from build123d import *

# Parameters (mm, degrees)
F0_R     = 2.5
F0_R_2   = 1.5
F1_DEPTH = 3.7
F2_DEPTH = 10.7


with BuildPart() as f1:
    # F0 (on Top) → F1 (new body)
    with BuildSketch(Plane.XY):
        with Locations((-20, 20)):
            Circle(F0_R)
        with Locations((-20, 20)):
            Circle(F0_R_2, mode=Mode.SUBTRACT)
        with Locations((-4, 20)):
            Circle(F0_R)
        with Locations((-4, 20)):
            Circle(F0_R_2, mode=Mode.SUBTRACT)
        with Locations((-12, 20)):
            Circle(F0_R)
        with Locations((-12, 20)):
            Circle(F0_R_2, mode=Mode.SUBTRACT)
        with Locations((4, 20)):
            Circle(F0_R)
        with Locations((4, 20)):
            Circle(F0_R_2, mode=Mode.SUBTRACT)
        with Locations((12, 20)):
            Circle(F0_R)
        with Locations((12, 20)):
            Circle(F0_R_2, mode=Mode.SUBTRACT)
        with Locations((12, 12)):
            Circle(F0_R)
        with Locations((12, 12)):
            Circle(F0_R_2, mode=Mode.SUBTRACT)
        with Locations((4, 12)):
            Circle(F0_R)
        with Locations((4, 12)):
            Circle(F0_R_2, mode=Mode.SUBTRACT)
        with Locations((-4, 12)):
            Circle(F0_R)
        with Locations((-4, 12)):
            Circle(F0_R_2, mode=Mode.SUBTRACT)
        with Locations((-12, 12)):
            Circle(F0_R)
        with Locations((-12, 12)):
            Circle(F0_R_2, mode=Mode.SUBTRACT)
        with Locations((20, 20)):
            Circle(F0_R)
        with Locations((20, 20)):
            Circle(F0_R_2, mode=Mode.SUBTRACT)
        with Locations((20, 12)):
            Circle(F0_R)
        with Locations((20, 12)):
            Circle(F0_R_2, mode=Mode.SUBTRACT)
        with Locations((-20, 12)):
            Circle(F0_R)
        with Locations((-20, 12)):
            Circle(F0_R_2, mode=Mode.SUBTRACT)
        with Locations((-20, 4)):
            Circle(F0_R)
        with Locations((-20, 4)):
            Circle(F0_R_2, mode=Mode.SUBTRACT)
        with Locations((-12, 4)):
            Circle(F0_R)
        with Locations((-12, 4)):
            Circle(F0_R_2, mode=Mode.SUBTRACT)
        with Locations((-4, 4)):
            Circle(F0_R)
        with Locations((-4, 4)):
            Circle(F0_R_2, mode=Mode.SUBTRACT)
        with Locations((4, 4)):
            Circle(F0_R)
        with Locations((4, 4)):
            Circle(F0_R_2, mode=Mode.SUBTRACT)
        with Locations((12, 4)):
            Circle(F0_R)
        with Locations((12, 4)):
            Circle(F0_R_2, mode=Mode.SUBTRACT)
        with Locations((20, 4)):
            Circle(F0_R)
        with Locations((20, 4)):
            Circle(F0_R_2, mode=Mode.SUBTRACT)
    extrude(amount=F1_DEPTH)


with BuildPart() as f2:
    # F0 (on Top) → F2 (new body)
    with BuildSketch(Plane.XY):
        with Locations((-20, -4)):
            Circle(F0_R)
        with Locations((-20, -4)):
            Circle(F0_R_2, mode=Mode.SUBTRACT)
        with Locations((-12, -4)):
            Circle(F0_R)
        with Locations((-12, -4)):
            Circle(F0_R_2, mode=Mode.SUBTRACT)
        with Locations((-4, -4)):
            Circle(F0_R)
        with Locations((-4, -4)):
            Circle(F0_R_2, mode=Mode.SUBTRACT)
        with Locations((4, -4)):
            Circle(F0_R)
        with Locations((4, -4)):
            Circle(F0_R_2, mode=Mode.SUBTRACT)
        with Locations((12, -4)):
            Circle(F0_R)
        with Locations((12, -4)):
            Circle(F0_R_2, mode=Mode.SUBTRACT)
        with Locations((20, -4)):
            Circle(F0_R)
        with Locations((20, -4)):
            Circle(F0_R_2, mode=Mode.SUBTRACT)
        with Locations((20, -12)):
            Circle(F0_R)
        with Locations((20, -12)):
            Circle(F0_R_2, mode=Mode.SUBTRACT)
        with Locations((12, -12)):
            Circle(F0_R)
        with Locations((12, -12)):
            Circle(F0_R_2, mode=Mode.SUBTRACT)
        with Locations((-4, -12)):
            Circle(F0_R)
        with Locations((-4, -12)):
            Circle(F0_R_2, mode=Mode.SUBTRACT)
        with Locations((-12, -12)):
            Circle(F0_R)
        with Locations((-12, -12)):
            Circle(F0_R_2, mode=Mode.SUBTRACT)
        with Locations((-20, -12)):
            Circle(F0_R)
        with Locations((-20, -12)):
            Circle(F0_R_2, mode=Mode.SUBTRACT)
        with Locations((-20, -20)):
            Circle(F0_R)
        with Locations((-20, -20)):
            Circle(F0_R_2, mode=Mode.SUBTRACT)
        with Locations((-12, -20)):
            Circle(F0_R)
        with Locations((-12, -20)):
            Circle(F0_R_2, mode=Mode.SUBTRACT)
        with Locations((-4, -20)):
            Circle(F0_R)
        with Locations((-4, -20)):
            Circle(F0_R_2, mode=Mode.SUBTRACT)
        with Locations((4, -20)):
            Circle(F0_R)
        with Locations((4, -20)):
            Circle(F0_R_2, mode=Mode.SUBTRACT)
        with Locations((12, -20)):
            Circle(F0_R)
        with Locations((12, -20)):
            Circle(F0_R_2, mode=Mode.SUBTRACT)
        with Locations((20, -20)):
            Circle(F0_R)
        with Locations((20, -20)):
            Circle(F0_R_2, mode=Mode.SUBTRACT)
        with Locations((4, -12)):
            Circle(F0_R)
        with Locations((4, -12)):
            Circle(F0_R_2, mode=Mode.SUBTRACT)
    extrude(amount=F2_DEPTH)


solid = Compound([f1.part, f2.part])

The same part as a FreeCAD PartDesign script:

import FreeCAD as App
import Part
import Sketcher
from FreeCAD import Vector
Q = App.Units.Quantity

doc = App.newDocument("Part")
body = doc.addObject("PartDesign::Body", "Body")
body.AllowCompound = True

sketch1 = body.newObject("Sketcher::SketchObject", "Sketch")
sketch1.AttachmentSupport = (doc.getObject("XY_Plane"), [""])
sketch1.MapMode = "FlatFace"
sketch1.addGeometry([
    Part.Circle(Vector(-20, 20, 0), Vector(0, 0, 1), 2.5),
    Part.Circle(Vector(-20, 20, 0), Vector(0, 0, 1), 1.5),
    Part.Circle(Vector(-4, 20, 0), Vector(0, 0, 1), 2.5),
    Part.Circle(Vector(-4, 20, 0), Vector(0, 0, 1), 1.5),
    Part.Circle(Vector(-12, 20, 0), Vector(0, 0, 1), 2.5),
    Part.Circle(Vector(-12, 20, 0), Vector(0, 0, 1), 1.5),
    Part.Circle(Vector(4, 20, 0), Vector(0, 0, 1), 2.5),
    Part.Circle(Vector(4, 20, 0), Vector(0, 0, 1), 1.5),
    Part.Circle(Vector(12, 20, 0), Vector(0, 0, 1), 2.5),
    Part.Circle(Vector(12, 20, 0), Vector(0, 0, 1), 1.5),
    Part.Circle(Vector(12, 12, 0), Vector(0, 0, 1), 2.5),
    Part.Circle(Vector(12, 12, 0), Vector(0, 0, 1), 1.5),
    Part.Circle(Vector(4, 12, 0), Vector(0, 0, 1), 2.5),
    Part.Circle(Vector(4, 12, 0), Vector(0, 0, 1), 1.5),
    Part.Circle(Vector(-4, 12, 0), Vector(0, 0, 1), 2.5),
    Part.Circle(Vector(-4, 12, 0), Vector(0, 0, 1), 1.5),
    Part.Circle(Vector(-12, 12, 0), Vector(0, 0, 1), 2.5),
    Part.Circle(Vector(-12, 12, 0), Vector(0, 0, 1), 1.5),
    Part.Circle(Vector(20, 20, 0), Vector(0, 0, 1), 2.5),
    Part.Circle(Vector(20, 20, 0), Vector(0, 0, 1), 1.5),
    Part.Circle(Vector(20, 12, 0), Vector(0, 0, 1), 2.5),
    Part.Circle(Vector(20, 12, 0), Vector(0, 0, 1), 1.5),
    Part.Circle(Vector(-20, 12, 0), Vector(0, 0, 1), 2.5),
    Part.Circle(Vector(-20, 12, 0), Vector(0, 0, 1), 1.5),
    Part.Circle(Vector(-20, 4, 0), Vector(0, 0, 1), 2.5),
    Part.Circle(Vector(-20, 4, 0), Vector(0, 0, 1), 1.5),
    Part.Circle(Vector(-12, 4, 0), Vector(0, 0, 1), 2.5),
    Part.Circle(Vector(-12, 4, 0), Vector(0, 0, 1), 1.5),
    Part.Circle(Vector(-4, 4, 0), Vector(0, 0, 1), 2.5),
    Part.Circle(Vector(-4, 4, 0), Vector(0, 0, 1), 1.5),
    Part.Circle(Vector(4, 4, 0), Vector(0, 0, 1), 2.5),
    Part.Circle(Vector(4, 4, 0), Vector(0, 0, 1), 1.5),
    Part.Circle(Vector(12, 4, 0), Vector(0, 0, 1), 2.5),
    Part.Circle(Vector(12, 4, 0), Vector(0, 0, 1), 1.5),
    Part.Circle(Vector(20, 4, 0), Vector(0, 0, 1), 2.5),
    Part.Circle(Vector(20, 4, 0), Vector(0, 0, 1), 1.5),
], False)
sketch1.addConstraint([
    Sketcher.Constraint("Coincident", 1, 3, 0, 3),
    Sketcher.Constraint("Coincident", 3, 3, 2, 3),
    Sketcher.Constraint("Coincident", 5, 3, 4, 3),
    Sketcher.Constraint("Coincident", 7, 3, 6, 3),
    Sketcher.Constraint("Coincident", 9, 3, 8, 3),
    Sketcher.Constraint("Coincident", 11, 3, 10, 3),
    Sketcher.Constraint("Coincident", 13, 3, 12, 3),
    Sketcher.Constraint("Coincident", 15, 3, 14, 3),
    Sketcher.Constraint("Coincident", 17, 3, 16, 3),
    Sketcher.Constraint("Coincident", 19, 3, 18, 3),
    Sketcher.Constraint("Coincident", 21, 3, 20, 3),
    Sketcher.Constraint("Coincident", 23, 3, 22, 3),
    Sketcher.Constraint("Coincident", 25, 3, 24, 3),
    Sketcher.Constraint("Coincident", 27, 3, 26, 3),
    Sketcher.Constraint("Coincident", 29, 3, 28, 3),
    Sketcher.Constraint("Coincident", 31, 3, 30, 3),
    Sketcher.Constraint("Coincident", 33, 3, 32, 3),
    Sketcher.Constraint("Coincident", 35, 3, 34, 3),
    Sketcher.Constraint("Equal", 0, 2),
    Sketcher.Constraint("Equal", 1, 3),
    Sketcher.Constraint("Equal", 2, 4),
    Sketcher.Constraint("Equal", 3, 5),
    Sketcher.Constraint("Equal", 4, 6),
    Sketcher.Constraint("Equal", 5, 7),
    Sketcher.Constraint("Equal", 6, 8),
    Sketcher.Constraint("Equal", 7, 9),
    Sketcher.Constraint("Equal", 8, 10),
    Sketcher.Constraint("Equal", 9, 11),
    Sketcher.Constraint("Equal", 10, 12),
    Sketcher.Constraint("Equal", 11, 13),
    Sketcher.Constraint("Equal", 12, 14),
    Sketcher.Constraint("Equal", 13, 15),
    Sketcher.Constraint("Equal", 14, 16),
    Sketcher.Constraint("Equal", 15, 17),
    Sketcher.Constraint("Equal", 16, 18),
    Sketcher.Constraint("Equal", 17, 19),
    Sketcher.Constraint("Equal", 18, 20),
    Sketcher.Constraint("Equal", 19, 21),
    Sketcher.Constraint("Equal", 20, 22),
    Sketcher.Constraint("Equal", 21, 23),
    Sketcher.Constraint("Equal", 22, 24),
    Sketcher.Constraint("Equal", 23, 25),
    Sketcher.Constraint("Equal", 24, 26),
    Sketcher.Constraint("Equal", 25, 27),
    Sketcher.Constraint("Equal", 26, 28),
    Sketcher.Constraint("Equal", 27, 29),
    Sketcher.Constraint("Equal", 28, 30),
    Sketcher.Constraint("Equal", 29, 31),
    Sketcher.Constraint("Equal", 30, 32),
    Sketcher.Constraint("Equal", 31, 33),
    Sketcher.Constraint("Equal", 32, 34),
    Sketcher.Constraint("Equal", 33, 35),
    Sketcher.Constraint("Symmetric", 2, 3, 6, 3, -2),
    Sketcher.Constraint("Symmetric", 4, 3, 8, 3, -2),
    Sketcher.Constraint("Symmetric", 12, 3, 14, 3, -2),
    Sketcher.Constraint("Symmetric", 10, 3, 16, 3, -2),
    Sketcher.Constraint("Symmetric", 0, 3, 18, 3, -2),
    Sketcher.Constraint("Symmetric", 20, 3, 22, 3, -2),
    Sketcher.Constraint("Symmetric", 28, 3, 30, 3, -2),
    Sketcher.Constraint("Symmetric", 26, 3, 32, 3, -2),
    Sketcher.Constraint("Symmetric", 24, 3, 34, 3, -2),
    Sketcher.Constraint("Horizontal", 1, 3, 2, 3),
    Sketcher.Constraint("Horizontal", 3, 3, 4, 3),
    Sketcher.Constraint("Horizontal", 11, 3, 12, 3),
    Sketcher.Constraint("Horizontal", 17, 3, 20, 3),
    Sketcher.Constraint("Horizontal", 25, 3, 26, 3),
    Sketcher.Constraint("Horizontal", 27, 3, 28, 3),
    Sketcher.Constraint("Vertical", 9, 3, 10, 3),
    Sketcher.Constraint("Vertical", 7, 3, 12, 3),
    Sketcher.Constraint("Vertical", 19, 3, 20, 3),
    Sketcher.Constraint("Vertical", 23, 3, 24, 3),
    Sketcher.Constraint("Vertical", 17, 3, 26, 3),
    Sketcher.Constraint("Vertical", 15, 3, 28, 3),
    Sketcher.Constraint("Diameter", 0, Q("5 mm")),
    Sketcher.Constraint("Diameter", 1, Q("3 mm")),
    Sketcher.Constraint("DistanceX", 0, 3, -1, 1, Q("20 mm")),
    Sketcher.Constraint("DistanceY", -1, 1, 0, 3, Q("20 mm")),
    Sketcher.Constraint("DistanceX", 2, 3, -1, 1, Q("4 mm")),
    Sketcher.Constraint("DistanceX", 4, 3, -1, 1, Q("12 mm")),
    Sketcher.Constraint("DistanceY", -1, 1, 10, 3, Q("12 mm")),
    Sketcher.Constraint("DistanceY", -1, 1, 24, 3, Q("4 mm")),
])
pad1 = body.newObject("PartDesign::Pad", "Pad")
pad1.Profile = sketch1
pad1.Length = 3.7
body2 = doc.addObject("PartDesign::Body", "Body001")
body2.AllowCompound = True

sketch2 = body2.newObject("Sketcher::SketchObject", "Sketch001")
sketch2.AttachmentSupport = (doc.getObject("XY_Plane001"), [""])
sketch2.MapMode = "FlatFace"
sketch2.addGeometry([
    Part.Circle(Vector(-20, -4, 0), Vector(0, 0, 1), 2.5),
    Part.Circle(Vector(-20, -4, 0), Vector(0, 0, 1), 1.5),
    Part.Circle(Vector(-12, -4, 0), Vector(0, 0, 1), 2.5),
    Part.Circle(Vector(-12, -4, 0), Vector(0, 0, 1), 1.5),
    Part.Circle(Vector(-4, -4, 0), Vector(0, 0, 1), 2.5),
    Part.Circle(Vector(-4, -4, 0), Vector(0, 0, 1), 1.5),
    Part.Circle(Vector(4, -4, 0), Vector(0, 0, 1), 2.5),
    Part.Circle(Vector(4, -4, 0), Vector(0, 0, 1), 1.5),
    Part.Circle(Vector(12, -4, 0), Vector(0, 0, 1), 2.5),
    Part.Circle(Vector(12, -4, 0), Vector(0, 0, 1), 1.5),
    Part.Circle(Vector(20, -4, 0), Vector(0, 0, 1), 2.5),
    Part.Circle(Vector(20, -4, 0), Vector(0, 0, 1), 1.5),
    Part.Circle(Vector(20, -12, 0), Vector(0, 0, 1), 2.5),
    Part.Circle(Vector(20, -12, 0), Vector(0, 0, 1), 1.5),
    Part.Circle(Vector(12, -12, 0), Vector(0, 0, 1), 2.5),
    Part.Circle(Vector(12, -12, 0), Vector(0, 0, 1), 1.5),
    Part.Circle(Vector(-4, -12, 0), Vector(0, 0, 1), 2.5),
    Part.Circle(Vector(-4, -12, 0), Vector(0, 0, 1), 1.5),
    Part.Circle(Vector(-12, -12, 0), Vector(0, 0, 1), 2.5),
    Part.Circle(Vector(-12, -12, 0), Vector(0, 0, 1), 1.5),
    Part.Circle(Vector(-20, -12, 0), Vector(0, 0, 1), 2.5),
    Part.Circle(Vector(-20, -12, 0), Vector(0, 0, 1), 1.5),
    Part.Circle(Vector(-20, -20, 0), Vector(0, 0, 1), 2.5),
    Part.Circle(Vector(-20, -20, 0), Vector(0, 0, 1), 1.5),
    Part.Circle(Vector(-12, -20, 0), Vector(0, 0, 1), 2.5),
    Part.Circle(Vector(-12, -20, 0), Vector(0, 0, 1), 1.5),
    Part.Circle(Vector(-4, -20, 0), Vector(0, 0, 1), 2.5),
    Part.Circle(Vector(-4, -20, 0), Vector(0, 0, 1), 1.5),
    Part.Circle(Vector(4, -20, 0), Vector(0, 0, 1), 2.5),
    Part.Circle(Vector(4, -20, 0), Vector(0, 0, 1), 1.5),
    Part.Circle(Vector(12, -20, 0), Vector(0, 0, 1), 2.5),
    Part.Circle(Vector(12, -20, 0), Vector(0, 0, 1), 1.5),
    Part.Circle(Vector(20, -20, 0), Vector(0, 0, 1), 2.5),
    Part.Circle(Vector(20, -20, 0), Vector(0, 0, 1), 1.5),
    Part.Circle(Vector(4, -12, 0), Vector(0, 0, 1), 2.5),
    Part.Circle(Vector(4, -12, 0), Vector(0, 0, 1), 1.5),
], False)
sketch2.addConstraint([
    Sketcher.Constraint("Coincident", 1, 3, 0, 3),
    Sketcher.Constraint("Coincident", 3, 3, 2, 3),
    Sketcher.Constraint("Coincident", 5, 3, 4, 3),
    Sketcher.Constraint("Coincident", 7, 3, 6, 3),
    Sketcher.Constraint("Coincident", 9, 3, 8, 3),
    Sketcher.Constraint("Coincident", 11, 3, 10, 3),
    Sketcher.Constraint("Coincident", 13, 3, 12, 3),
    Sketcher.Constraint("Coincident", 15, 3, 14, 3),
    Sketcher.Constraint("Coincident", 17, 3, 16, 3),
    Sketcher.Constraint("Coincident", 19, 3, 18, 3),
    Sketcher.Constraint("Coincident", 21, 3, 20, 3),
    Sketcher.Constraint("Coincident", 23, 3, 22, 3),
    Sketcher.Constraint("Coincident", 25, 3, 24, 3),
    Sketcher.Constraint("Coincident", 27, 3, 26, 3),
    Sketcher.Constraint("Coincident", 29, 3, 28, 3),
    Sketcher.Constraint("Coincident", 31, 3, 30, 3),
    Sketcher.Constraint("Coincident", 33, 3, 32, 3),
    Sketcher.Constraint("Coincident", 35, 3, 34, 3),
    Sketcher.Constraint("Equal", 0, 2),
    Sketcher.Constraint("Equal", 1, 3),
    Sketcher.Constraint("Equal", 2, 4),
    Sketcher.Constraint("Equal", 3, 5),
    Sketcher.Constraint("Equal", 4, 6),
    Sketcher.Constraint("Equal", 5, 7),
    Sketcher.Constraint("Equal", 6, 8),
    Sketcher.Constraint("Equal", 7, 9),
    Sketcher.Constraint("Equal", 8, 10),
    Sketcher.Constraint("Equal", 9, 11),
    Sketcher.Constraint("Equal", 10, 12),
    Sketcher.Constraint("Equal", 11, 13),
    Sketcher.Constraint("Equal", 12, 14),
    Sketcher.Constraint("Equal", 13, 15),
    Sketcher.Constraint("Equal", 14, 16),
    Sketcher.Constraint("Equal", 15, 17),
    Sketcher.Constraint("Equal", 16, 18),
    Sketcher.Constraint("Equal", 17, 19),
    Sketcher.Constraint("Equal", 18, 20),
    Sketcher.Constraint("Equal", 19, 21),
    Sketcher.Constraint("Equal", 20, 22),
    Sketcher.Constraint("Equal", 21, 23),
    Sketcher.Constraint("Equal", 22, 24),
    Sketcher.Constraint("Equal", 23, 25),
    Sketcher.Constraint("Equal", 24, 26),
    Sketcher.Constraint("Equal", 25, 27),
    Sketcher.Constraint("Equal", 26, 28),
    Sketcher.Constraint("Equal", 27, 29),
    Sketcher.Constraint("Equal", 28, 30),
    Sketcher.Constraint("Equal", 29, 31),
    Sketcher.Constraint("Equal", 30, 32),
    Sketcher.Constraint("Equal", 31, 33),
    Sketcher.Constraint("Equal", 32, 34),
    Sketcher.Constraint("Equal", 33, 35),
    Sketcher.Constraint("Symmetric", 4, 3, 6, 3, -2),
    Sketcher.Constraint("Symmetric", 2, 3, 8, 3, -2),
    Sketcher.Constraint("Symmetric", 0, 3, 10, 3, -2),
    Sketcher.Constraint("Symmetric", 14, 3, 18, 3, -2),
    Sketcher.Constraint("Symmetric", 12, 3, 20, 3, -2),
    Sketcher.Constraint("Symmetric", 26, 3, 28, 3, -2),
    Sketcher.Constraint("Symmetric", 24, 3, 30, 3, -2),
    Sketcher.Constraint("Symmetric", 22, 3, 32, 3, -2),
    Sketcher.Constraint("Symmetric", 16, 3, 34, 3, -2),
    Sketcher.Constraint("Horizontal", 1, 3, 2, 3),
    Sketcher.Constraint("Horizontal", 3, 3, 4, 3),
    Sketcher.Constraint("Horizontal", 13, 3, 14, 3),
    Sketcher.Constraint("Horizontal", 15, 3, 16, 3),
    Sketcher.Constraint("Horizontal", 23, 3, 24, 3),
    Sketcher.Constraint("Horizontal", 25, 3, 26, 3),
    Sketcher.Constraint("Vertical", 11, 3, 12, 3),
    Sketcher.Constraint("Vertical", 9, 3, 14, 3),
    Sketcher.Constraint("Vertical", 5, 3, 16, 3),
    Sketcher.Constraint("Vertical", 21, 3, 22, 3),
    Sketcher.Constraint("Vertical", 19, 3, 24, 3),
    Sketcher.Constraint("Vertical", 17, 3, 26, 3),
    Sketcher.Constraint("Diameter", 0, Q("5 mm")),
    Sketcher.Constraint("Diameter", 1, Q("3 mm")),
    Sketcher.Constraint("DistanceX", 0, 3, -1, 1, Q("20 mm")),
    Sketcher.Constraint("DistanceY", 0, 3, -1, 1, Q("4 mm")),
    Sketcher.Constraint("DistanceX", 2, 3, -1, 1, Q("12 mm")),
    Sketcher.Constraint("DistanceX", 4, 3, -1, 1, Q("4 mm")),
    Sketcher.Constraint("DistanceY", 12, 3, -1, 1, Q("12 mm")),
    Sketcher.Constraint("DistanceY", 22, 3, -1, 1, Q("20 mm")),
])
pad2 = body2.newObject("PartDesign::Pad", "Pad001")
pad2.Profile = sketch2
pad2.Length = 10.7

doc.recompute()
